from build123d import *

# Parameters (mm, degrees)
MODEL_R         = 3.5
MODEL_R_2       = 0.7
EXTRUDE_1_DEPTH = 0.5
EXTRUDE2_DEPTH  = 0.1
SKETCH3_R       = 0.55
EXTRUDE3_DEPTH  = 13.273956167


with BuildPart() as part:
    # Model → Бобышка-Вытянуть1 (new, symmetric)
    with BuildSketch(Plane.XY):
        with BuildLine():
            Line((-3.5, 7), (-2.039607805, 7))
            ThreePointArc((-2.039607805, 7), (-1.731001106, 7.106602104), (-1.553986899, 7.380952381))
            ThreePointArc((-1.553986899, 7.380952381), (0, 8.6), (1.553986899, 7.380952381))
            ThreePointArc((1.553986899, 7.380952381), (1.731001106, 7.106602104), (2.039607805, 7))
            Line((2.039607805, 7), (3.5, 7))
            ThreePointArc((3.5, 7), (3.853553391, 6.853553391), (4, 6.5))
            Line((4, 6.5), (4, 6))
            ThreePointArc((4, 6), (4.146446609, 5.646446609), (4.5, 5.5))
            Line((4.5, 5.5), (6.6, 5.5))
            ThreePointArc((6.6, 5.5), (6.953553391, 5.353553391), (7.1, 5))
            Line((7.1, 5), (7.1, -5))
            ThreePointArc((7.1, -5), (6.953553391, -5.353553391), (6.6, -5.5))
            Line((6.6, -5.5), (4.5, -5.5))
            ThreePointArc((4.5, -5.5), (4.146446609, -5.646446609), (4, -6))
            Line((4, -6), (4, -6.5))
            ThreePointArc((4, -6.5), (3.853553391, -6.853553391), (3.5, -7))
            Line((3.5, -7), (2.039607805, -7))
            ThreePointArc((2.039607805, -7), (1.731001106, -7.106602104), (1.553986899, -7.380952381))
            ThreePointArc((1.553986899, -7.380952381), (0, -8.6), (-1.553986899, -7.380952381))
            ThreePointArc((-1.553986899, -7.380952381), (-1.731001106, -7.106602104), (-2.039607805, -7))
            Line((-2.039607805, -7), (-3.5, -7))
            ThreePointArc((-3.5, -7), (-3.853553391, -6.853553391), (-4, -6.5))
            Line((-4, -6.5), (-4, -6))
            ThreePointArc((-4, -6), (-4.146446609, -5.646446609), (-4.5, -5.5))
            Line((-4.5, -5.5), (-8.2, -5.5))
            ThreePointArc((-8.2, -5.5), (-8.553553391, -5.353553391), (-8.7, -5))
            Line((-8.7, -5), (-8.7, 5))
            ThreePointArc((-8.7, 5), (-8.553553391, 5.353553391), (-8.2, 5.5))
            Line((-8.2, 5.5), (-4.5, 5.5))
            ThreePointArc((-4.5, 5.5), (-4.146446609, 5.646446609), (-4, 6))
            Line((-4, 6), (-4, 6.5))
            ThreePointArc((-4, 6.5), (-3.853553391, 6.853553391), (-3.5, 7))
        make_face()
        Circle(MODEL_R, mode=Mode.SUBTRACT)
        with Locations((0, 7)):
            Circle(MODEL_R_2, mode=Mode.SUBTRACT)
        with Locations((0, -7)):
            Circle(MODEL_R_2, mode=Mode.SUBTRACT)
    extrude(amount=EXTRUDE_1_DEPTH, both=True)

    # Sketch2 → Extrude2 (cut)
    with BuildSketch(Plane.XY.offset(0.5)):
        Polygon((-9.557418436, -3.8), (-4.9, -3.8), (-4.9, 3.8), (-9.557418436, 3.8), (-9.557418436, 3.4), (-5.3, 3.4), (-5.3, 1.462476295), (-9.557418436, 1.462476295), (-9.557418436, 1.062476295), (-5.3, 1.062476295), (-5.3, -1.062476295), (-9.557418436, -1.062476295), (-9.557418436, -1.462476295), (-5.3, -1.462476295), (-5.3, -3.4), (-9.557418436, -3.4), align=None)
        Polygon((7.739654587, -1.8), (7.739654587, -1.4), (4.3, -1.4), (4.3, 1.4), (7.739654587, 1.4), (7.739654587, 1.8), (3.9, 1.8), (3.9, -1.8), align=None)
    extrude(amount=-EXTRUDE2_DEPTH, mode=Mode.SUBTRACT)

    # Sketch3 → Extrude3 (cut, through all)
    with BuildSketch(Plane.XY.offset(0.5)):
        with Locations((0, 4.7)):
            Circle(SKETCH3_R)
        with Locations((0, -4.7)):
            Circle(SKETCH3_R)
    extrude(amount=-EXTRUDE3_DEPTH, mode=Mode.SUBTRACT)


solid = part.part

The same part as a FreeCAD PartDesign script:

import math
import FreeCAD as App
import Part
import Sketcher


def add_polygon(sketch, points):
    """Adds a closed chain of lines whose ends are joined by coincident constraints."""
    first, n = sketch.GeometryCount, len(points)
    for a, b in zip(points, points[1:] + points[:1]):
        sketch.addGeometry(Part.LineSegment(App.Vector(*a, 0), App.Vector(*b, 0)), False)
    for i in range(n):
        sketch.addConstraint(Sketcher.Constraint("Coincident", first + i, 2, first + (i + 1) % n, 1))

doc = App.newDocument("Part")
body = doc.addObject("PartDesign::Body", "Body")

# Sketch on XY plane
sketch1 = body.newObject("Sketcher::SketchObject", "Sketch")
sketch1.AttachmentSupport = (doc.getObject("XY_Plane"), [""])
sketch1.MapMode = "FlatFace"
sketch1.addGeometry([
    Part.LineSegment(App.Vector(-2.039608, 7, 0), App.Vector(-3.5, 7, 0)),  # 0
    Part.ArcOfCircle(Part.Circle(App.Vector(-3.5, 6.5, 0), App.Vector(0, 0, 1), 0.5), math.radians(90), math.radians(180)),  # 1
    Part.LineSegment(App.Vector(-4, 6.5, 0), App.Vector(-4, 6, 0)),  # 2
    Part.ArcOfCircle(Part.Circle(App.Vector(-4.5, 6, 0), App.Vector(0, 0, 1), 0.5), math.radians(-90), math.radians(0)),  # 3
    Part.LineSegment(App.Vector(-4.5, 5.5, 0), App.Vector(-8.2, 5.5, 0)),  # 4
    Part.ArcOfCircle(Part.Circle(App.Vector(-8.2, 5, 0), App.Vector(0, 0, 1), 0.5), math.radians(90), math.radians(180)),  # 5
    Part.LineSegment(App.Vector(-8.7, 5, 0), App.Vector(-8.7, -5, 0)),  # 6
    Part.ArcOfCircle(Part.Circle(App.Vector(-8.2, -5, 0), App.Vector(0, 0, 1), 0.5), math.radians(180), math.radians(270)),  # 7
    Part.LineSegment(App.Vector(-8.2, -5.5, 0), App.Vector(-4.5, -5.5, 0)),  # 8
    Part.ArcOfCircle(Part.Circle(App.Vector(-4.5, -6, 0), App.Vector(0, 0, 1), 0.5), math.radians(0), math.radians(90)),  # 9
    Part.LineSegment(App.Vector(-4, -6, 0), App.Vector(-4, -6.5, 0)),  # 10
    Part.ArcOfCircle(Part.Circle(App.Vector(-3.5, -6.5, 0), App.Vector(0, 0, 1), 0.5), math.radians(180), math.radians(270)),  # 11
    Part.LineSegment(App.Vector(-3.5, -7, 0), App.Vector(-2.039608, -7, 0)),  # 12
    Part.ArcOfCircle(Part.Circle(App.Vector(-2.039608, -7.5, 0), App.Vector(0, 0, 1), 0.5), math.radians(13.774147), math.radians(90)),  # 13
    Part.ArcOfCircle(Part.Circle(App.Vector(0, -7, 0), App.Vector(0, 0, 1), 1.6), math.radians(-166.225853), math.radians(-13.774147)),  # 14
    Part.ArcOfCircle(Part.Circle(App.Vector(2.039608, -7.5, 0), App.Vector(0, 0, 1), 0.5), math.radians(90), math.radians(166.225853)),  # 15
    Part.LineSegment(App.Vector(2.039608, -7, 0), App.Vector(3.5, -7, 0)),  # 16
    Part.ArcOfCircle(Part.Circle(App.Vector(3.5, -6.5, 0), App.Vector(0, 0, 1), 0.5), math.radians(-90), math.radians(0)),  # 17
    Part.LineSegment(App.Vector(4, -6.5, 0), App.Vector(4, -6, 0)),  # 18
    Part.ArcOfCircle(Part.Circle(App.Vector(4.5, -6, 0), App.Vector(0, 0, 1), 0.5), math.radians(90), math.radians(180)),  # 19
    Part.LineSegment(App.Vector(4.5, -5.5, 0), App.Vector(6.6, -5.5, 0)),  # 20
    Part.ArcOfCircle(Part.Circle(App.Vector(6.6, -5, 0), App.Vector(0, 0, 1), 0.5), math.radians(-90), math.radians(0)),  # 21
    Part.LineSegment(App.Vector(7.1, -5, 0), App.Vector(7.1, 5, 0)),  # 22
    Part.ArcOfCircle(Part.Circle(App.Vector(6.6, 5, 0), App.Vector(0, 0, 1), 0.5), math.radians(0), math.radians(90)),  # 23
    Part.LineSegment(App.Vector(6.6, 5.5, 0), App.Vector(4.5, 5.5, 0)),  # 24
    Part.ArcOfCircle(Part.Circle(App.Vector(4.5, 6, 0), App.Vector(0, 0, 1), 0.5), math.radians(180), math.radians(270)),  # 25
    Part.LineSegment(App.Vector(4, 6, 0), App.Vector(4, 6.5, 0)),  # 26
    Part.ArcOfCircle(Part.Circle(App.Vector(3.5, 6.5, 0), App.Vector(0, 0, 1), 0.5), math.radians(0), math.radians(90)),  # 27
    Part.LineSegment(App.Vector(3.5, 7, 0), App.Vector(2.039608, 7, 0)),  # 28
    Part.ArcOfCircle(Part.Circle(App.Vector(2.039608, 7.5, 0), App.Vector(0, 0, 1), 0.5), math.radians(-166.225853), math.radians(-90)),  # 29
    Part.ArcOfCircle(Part.Circle(App.Vector(0, 7, 0), App.Vector(0, 0, 1), 1.6), math.radians(13.774147), math.radians(166.225853)),  # 30
    Part.ArcOfCircle(Part.Circle(App.Vector(-2.039608, 7.5, 0), App.Vector(0, 0, 1), 0.5), math.radians(-90), math.radians(-13.774147)),  # 31
    Part.Circle(App.Vector(0, -7, 0), App.Vector(0, 0, 1), 0.7),  # 32
    Part.Circle(App.Vector(0, 0, 0), App.Vector(0, 0, 1), 3.5),  # 33
    Part.Circle(App.Vector(0, 7, 0), App.Vector(0, 0, 1), 0.7),  # 34
], False)
sketch1.addConstraint([
    Sketcher.Constraint("Tangent", 0, 2, 1, 1),
    Sketcher.Constraint("Tangent", 1, 2, 2, 1),
    Sketcher.Constraint("Tangent", 2, 2, 3, 2),
    Sketcher.Constraint("Tangent", 3, 1, 4, 1),
    Sketcher.Constraint("Tangent", 4, 2, 5, 1),
    Sketcher.Constraint("Tangent", 5, 2, 6, 1),
    Sketcher.Constraint("Tangent", 6, 2, 7, 1),
    Sketcher.Constraint("Tangent", 7, 2, 8, 1),
    Sketcher.Constraint("Tangent", 8, 2, 9, 2),
    Sketcher.Constraint("Tangent", 9, 1, 10, 1),
    Sketcher.Constraint("Tangent", 10, 2, 11, 1),
    Sketcher.Constraint("Tangent", 11, 2, 12, 1),
    Sketcher.Constraint("Tangent", 12, 2, 13, 2),
    Sketcher.Constraint("Tangent", 13, 1, 14, 1),
    Sketcher.Constraint("Tangent", 14, 2, 15, 2),
    Sketcher.Constraint("Tangent", 15, 1, 16, 1),
    Sketcher.Constraint("Tangent", 16, 2, 17, 1),
    Sketcher.Constraint("Tangent", 17, 2, 18, 1),
    Sketcher.Constraint("Tangent", 18, 2, 19, 2),
    Sketcher.Constraint("Tangent", 19, 1, 20, 1),
    Sketcher.Constraint("Tangent", 20, 2, 21, 1),
    Sketcher.Constraint("Tangent", 21, 2, 22, 1),
    Sketcher.Constraint("Tangent", 22, 2, 23, 1),
    Sketcher.Constraint("Tangent", 23, 2, 24, 1),
    Sketcher.Constraint("Tangent", 24, 2, 25, 2),
    Sketcher.Constraint("Tangent", 25, 1, 26, 1),
    Sketcher.Constraint("Tangent", 26, 2, 27, 1),
    Sketcher.Constraint("Tangent", 27, 2, 28, 1),
    Sketcher.Constraint("Tangent", 28, 2, 29, 2),
    Sketcher.Constraint("Tangent", 29, 1, 30, 1),
    Sketcher.Constraint("Tangent", 30, 2, 31, 2),
    Sketcher.Constraint("Tangent", 31, 1, 0, 1),
    Sketcher.Constraint("Horizontal", 0),
    Sketcher.Constraint("Vertical", 2),
    Sketcher.Constraint("Horizontal", 4),
    Sketcher.Constraint("Vertical", 6),
    Sketcher.Constraint("Horizontal", 8),
    Sketcher.Constraint("Vertical", 10),
    Sketcher.Constraint("Horizontal", 12),
    Sketcher.Constraint("Horizontal", 16),
    Sketcher.Constraint("Vertical", 18),
    Sketcher.Constraint("Horizontal", 20),
    Sketcher.Constraint("Vertical", 22),
    Sketcher.Constraint("Horizontal", 24),
    Sketcher.Constraint("Vertical", 26),
    Sketcher.Constraint("Horizontal", 28),
    Sketcher.Constraint("Coincident", 33, 3, -1, 1),
    Sketcher.Constraint("Coincident", 32, 3, 14, 3),
    Sketcher.Constraint("Coincident", 34, 3, 30, 3),
    Sketcher.Constraint("Equal", 1, 3),
    Sketcher.Constraint("Equal", 3, 5),
    Sketcher.Constraint("Equal", 5, 7),
    Sketcher.Constraint("Equal", 7, 9),
    Sketcher.Constraint("Equal", 9, 11),
    Sketcher.Constraint("Equal", 11, 13),
    Sketcher.Constraint("Equal", 13, 15),
    Sketcher.Constraint("Equal", 15, 17),
    Sketcher.Constraint("Equal", 17, 19),
    Sketcher.Constraint("Equal", 19, 21),
    Sketcher.Constraint("Equal", 21, 23),
    Sketcher.Constraint("Equal", 23, 25),
    Sketcher.Constraint("Equal", 25, 27),
    Sketcher.Constraint("Equal", 27, 29),
    Sketcher.Constraint("Equal", 14, 30),
    Sketcher.Constraint("Equal", 29, 31),
    Sketcher.Constraint("Equal", 32, 34),
    Sketcher.Constraint("Symmetric", 1, 3, 17, 3, -1, 1),
    Sketcher.Constraint("Symmetric", 9, 3, 25, 3, -1, 1),
    Sketcher.Constraint("Symmetric", 13, 3, 29, 3, -1, 1),
    Sketcher.Constraint("Symmetric", 13, 3, 15, 3, -2),
    Sketcher.Constraint("Symmetric", 9, 3, 19, 3, -2),
    Sketcher.Constraint("PointOnObject", 30, 3, -2),
    Sketcher.Constraint("Horizontal", 5, 3, 23, 3),
    Sketcher.Constraint("Horizontal", 34, 3, 0, 2),
    Sketcher.Constraint("Diameter", 33, 7.0),
    Sketcher.Constraint("Diameter", 32, 1.4),
    Sketcher.Constraint("Radius", 1, 0.5),
    Sketcher.Constraint("Radius", 14, 1.6),
    Sketcher.Constraint("DistanceY", 6, 2, 6, 1, 10.0),
    Sketcher.Constraint("DistanceX", 4, 2, 4, 1, 3.7),
    Sketcher.Constraint("DistanceX", 20, 1, 20, 2, 2.1),
    Sketcher.Constraint("DistanceY", 2, 2, 2, 1, 0.5),
    Sketcher.Constraint("DistanceX", 1, 2, -1, 1, 4.0),
])
pad1 = body.newObject("PartDesign::Pad", "Pad")
pad1.Profile = sketch1
pad1.Length = 1
pad1.Midplane = True

# Sketch on XY plane
sketch2 = body.newObject("Sketcher::SketchObject", "Sketch001")
sketch2.AttachmentSupport = (doc.getObject("XY_Plane"), [""])
sketch2.MapMode = "FlatFace"
sketch2.AttachmentOffset = App.Placement(App.Vector(0, 0, 0.5), App.Rotation())
add_polygon(sketch2, [(-9.557418, -3.8), (-4.9, -3.8), (-4.9, 3.8), (-9.557418, 3.8), (-9.557418, 3.4), (-5.3, 3.4), (-5.3, 1.462476), (-9.557418, 1.462476), (-9.557418, 1.062476), (-5.3, 1.062476), (-5.3, -1.062476), (-9.557418, -1.062476), (-9.557418, -1.462476), (-5.3, -1.462476), (-5.3, -3.4), (-9.557418, -3.4)])  # lines 0-15
add_polygon(sketch2, [(7.739655, -1.8), (7.739655, -1.4), (4.3, -1.4), (4.3, 1.4), (7.739655, 1.4), (7.739655, 1.8), (3.9, 1.8), (3.9, -1.8)])  # lines 16-23
sketch2.addConstraint([
    Sketcher.Constraint("Horizontal", 0),
    Sketcher.Constraint("Vertical", 1),
    Sketcher.Constraint("Horizontal", 2),
    Sketcher.Constraint("Vertical", 3),
    Sketcher.Constraint("Horizontal", 4),
    Sketcher.Constraint("Vertical", 5),
    Sketcher.Constraint("Horizontal", 6),
    Sketcher.Constraint("Vertical", 7),
    Sketcher.Constraint("Horizontal", 8),
    Sketcher.Constraint("Vertical", 9),
    Sketcher.Constraint("Horizontal", 10),
    Sketcher.Constraint("Vertical", 11),
    Sketcher.Constraint("Horizontal", 12),
    Sketcher.Constraint("Vertical", 13),
    Sketcher.Constraint("Horizontal", 14),
    Sketcher.Constraint("Vertical", 15),
    Sketcher.Constraint("Vertical", 16),
    Sketcher.Constraint("Horizontal", 17),
    Sketcher.Constraint("Vertical", 18),
    Sketcher.Constraint("Horizontal", 19),
    Sketcher.Constraint("Vertical", 20),
    Sketcher.Constraint("Horizontal", 21),
    Sketcher.Constraint("Vertical", 22),
    Sketcher.Constraint("Horizontal", 23),
    Sketcher.Constraint("Symmetric", 7, 2, 10, 2, -1),
    Sketcher.Constraint("Symmetric", 5, 2, 12, 2, -1),
    Sketcher.Constraint("Symmetric", 3, 2, 14, 2, -1),
    Sketcher.Constraint("Symmetric", 16, 2, 19, 2, -1),
    Sketcher.Constraint("Vertical", 3, 2, 6, 2),
    Sketcher.Constraint("Vertical", 5, 2, 8, 2),
    Sketcher.Constraint("Equal", 3, 7),
    Sketcher.Constraint("Equal", 11, 15),
    Sketcher.Constraint("Equal", 15, 16),
    Sketcher.Constraint("Equal", 16, 20),
    Sketcher.Constraint("DistanceY", 1, 1, 1, 2, 7.6),
    Sketcher.Constraint("DistanceY", 3, 2, 3, 1, 0.4),
    Sketcher.Constraint("DistanceY", 18, 1, 18, 2, 2.8),
    Sketcher.Constraint("DistanceX", 0, 2, -1, 1, 4.9),
    Sketcher.Constraint("DistanceX", 4, 2, -1, 1, 5.3),
    Sketcher.Constraint("DistanceX", -1, 1, 17, 2, 4.3),
    Sketcher.Constraint("DistanceX", -1, 1, 21, 2, 3.9),
    Sketcher.Constraint("DistanceX", 0, 1, 0, 2, 4.657418),
    Sketcher.Constraint("DistanceX", 17, 2, 17, 1, 3.439655),
    Sketcher.Constraint("DistanceY", 5, 2, 5, 1, 1.937524),
])
pocket1 = body.newObject("PartDesign::Pocket", "Pocket")
pocket1.Profile = sketch2
pocket1.Length = 0.1

# Sketch on XY plane
sketch3 = body.newObject("Sketcher::SketchObject", "Sketch002")
sketch3.AttachmentSupport = (doc.getObject("XY_Plane"), [""])
sketch3.MapMode = "FlatFace"
sketch3.AttachmentOffset = App.Placement(App.Vector(0, 0, 0.5), App.Rotation())
sketch3.addGeometry([
    Part.Circle(App.Vector(0, 4.7, 0), App.Vector(0, 0, 1), 0.55),
    Part.Circle(App.Vector(0, -4.7, 0), App.Vector(0, 0, 1), 0.55),
], False)
sketch3.addConstraint([
    Sketcher.Constraint("Equal", 0, 1),
    Sketcher.Constraint("Symmetric", 0, 3, 1, 3, -1, 1),
    Sketcher.Constraint("PointOnObject", 0, 3, -2),
    Sketcher.Constraint("Diameter", 0, 1.1),
    Sketcher.Constraint("DistanceY", -1, 1, 0, 3, 4.7),
])
pocket2 = body.newObject("PartDesign::Pocket", "Pocket001")
pocket2.Profile = sketch3
pocket2.Type = "ThroughAll"

doc.recompute()
